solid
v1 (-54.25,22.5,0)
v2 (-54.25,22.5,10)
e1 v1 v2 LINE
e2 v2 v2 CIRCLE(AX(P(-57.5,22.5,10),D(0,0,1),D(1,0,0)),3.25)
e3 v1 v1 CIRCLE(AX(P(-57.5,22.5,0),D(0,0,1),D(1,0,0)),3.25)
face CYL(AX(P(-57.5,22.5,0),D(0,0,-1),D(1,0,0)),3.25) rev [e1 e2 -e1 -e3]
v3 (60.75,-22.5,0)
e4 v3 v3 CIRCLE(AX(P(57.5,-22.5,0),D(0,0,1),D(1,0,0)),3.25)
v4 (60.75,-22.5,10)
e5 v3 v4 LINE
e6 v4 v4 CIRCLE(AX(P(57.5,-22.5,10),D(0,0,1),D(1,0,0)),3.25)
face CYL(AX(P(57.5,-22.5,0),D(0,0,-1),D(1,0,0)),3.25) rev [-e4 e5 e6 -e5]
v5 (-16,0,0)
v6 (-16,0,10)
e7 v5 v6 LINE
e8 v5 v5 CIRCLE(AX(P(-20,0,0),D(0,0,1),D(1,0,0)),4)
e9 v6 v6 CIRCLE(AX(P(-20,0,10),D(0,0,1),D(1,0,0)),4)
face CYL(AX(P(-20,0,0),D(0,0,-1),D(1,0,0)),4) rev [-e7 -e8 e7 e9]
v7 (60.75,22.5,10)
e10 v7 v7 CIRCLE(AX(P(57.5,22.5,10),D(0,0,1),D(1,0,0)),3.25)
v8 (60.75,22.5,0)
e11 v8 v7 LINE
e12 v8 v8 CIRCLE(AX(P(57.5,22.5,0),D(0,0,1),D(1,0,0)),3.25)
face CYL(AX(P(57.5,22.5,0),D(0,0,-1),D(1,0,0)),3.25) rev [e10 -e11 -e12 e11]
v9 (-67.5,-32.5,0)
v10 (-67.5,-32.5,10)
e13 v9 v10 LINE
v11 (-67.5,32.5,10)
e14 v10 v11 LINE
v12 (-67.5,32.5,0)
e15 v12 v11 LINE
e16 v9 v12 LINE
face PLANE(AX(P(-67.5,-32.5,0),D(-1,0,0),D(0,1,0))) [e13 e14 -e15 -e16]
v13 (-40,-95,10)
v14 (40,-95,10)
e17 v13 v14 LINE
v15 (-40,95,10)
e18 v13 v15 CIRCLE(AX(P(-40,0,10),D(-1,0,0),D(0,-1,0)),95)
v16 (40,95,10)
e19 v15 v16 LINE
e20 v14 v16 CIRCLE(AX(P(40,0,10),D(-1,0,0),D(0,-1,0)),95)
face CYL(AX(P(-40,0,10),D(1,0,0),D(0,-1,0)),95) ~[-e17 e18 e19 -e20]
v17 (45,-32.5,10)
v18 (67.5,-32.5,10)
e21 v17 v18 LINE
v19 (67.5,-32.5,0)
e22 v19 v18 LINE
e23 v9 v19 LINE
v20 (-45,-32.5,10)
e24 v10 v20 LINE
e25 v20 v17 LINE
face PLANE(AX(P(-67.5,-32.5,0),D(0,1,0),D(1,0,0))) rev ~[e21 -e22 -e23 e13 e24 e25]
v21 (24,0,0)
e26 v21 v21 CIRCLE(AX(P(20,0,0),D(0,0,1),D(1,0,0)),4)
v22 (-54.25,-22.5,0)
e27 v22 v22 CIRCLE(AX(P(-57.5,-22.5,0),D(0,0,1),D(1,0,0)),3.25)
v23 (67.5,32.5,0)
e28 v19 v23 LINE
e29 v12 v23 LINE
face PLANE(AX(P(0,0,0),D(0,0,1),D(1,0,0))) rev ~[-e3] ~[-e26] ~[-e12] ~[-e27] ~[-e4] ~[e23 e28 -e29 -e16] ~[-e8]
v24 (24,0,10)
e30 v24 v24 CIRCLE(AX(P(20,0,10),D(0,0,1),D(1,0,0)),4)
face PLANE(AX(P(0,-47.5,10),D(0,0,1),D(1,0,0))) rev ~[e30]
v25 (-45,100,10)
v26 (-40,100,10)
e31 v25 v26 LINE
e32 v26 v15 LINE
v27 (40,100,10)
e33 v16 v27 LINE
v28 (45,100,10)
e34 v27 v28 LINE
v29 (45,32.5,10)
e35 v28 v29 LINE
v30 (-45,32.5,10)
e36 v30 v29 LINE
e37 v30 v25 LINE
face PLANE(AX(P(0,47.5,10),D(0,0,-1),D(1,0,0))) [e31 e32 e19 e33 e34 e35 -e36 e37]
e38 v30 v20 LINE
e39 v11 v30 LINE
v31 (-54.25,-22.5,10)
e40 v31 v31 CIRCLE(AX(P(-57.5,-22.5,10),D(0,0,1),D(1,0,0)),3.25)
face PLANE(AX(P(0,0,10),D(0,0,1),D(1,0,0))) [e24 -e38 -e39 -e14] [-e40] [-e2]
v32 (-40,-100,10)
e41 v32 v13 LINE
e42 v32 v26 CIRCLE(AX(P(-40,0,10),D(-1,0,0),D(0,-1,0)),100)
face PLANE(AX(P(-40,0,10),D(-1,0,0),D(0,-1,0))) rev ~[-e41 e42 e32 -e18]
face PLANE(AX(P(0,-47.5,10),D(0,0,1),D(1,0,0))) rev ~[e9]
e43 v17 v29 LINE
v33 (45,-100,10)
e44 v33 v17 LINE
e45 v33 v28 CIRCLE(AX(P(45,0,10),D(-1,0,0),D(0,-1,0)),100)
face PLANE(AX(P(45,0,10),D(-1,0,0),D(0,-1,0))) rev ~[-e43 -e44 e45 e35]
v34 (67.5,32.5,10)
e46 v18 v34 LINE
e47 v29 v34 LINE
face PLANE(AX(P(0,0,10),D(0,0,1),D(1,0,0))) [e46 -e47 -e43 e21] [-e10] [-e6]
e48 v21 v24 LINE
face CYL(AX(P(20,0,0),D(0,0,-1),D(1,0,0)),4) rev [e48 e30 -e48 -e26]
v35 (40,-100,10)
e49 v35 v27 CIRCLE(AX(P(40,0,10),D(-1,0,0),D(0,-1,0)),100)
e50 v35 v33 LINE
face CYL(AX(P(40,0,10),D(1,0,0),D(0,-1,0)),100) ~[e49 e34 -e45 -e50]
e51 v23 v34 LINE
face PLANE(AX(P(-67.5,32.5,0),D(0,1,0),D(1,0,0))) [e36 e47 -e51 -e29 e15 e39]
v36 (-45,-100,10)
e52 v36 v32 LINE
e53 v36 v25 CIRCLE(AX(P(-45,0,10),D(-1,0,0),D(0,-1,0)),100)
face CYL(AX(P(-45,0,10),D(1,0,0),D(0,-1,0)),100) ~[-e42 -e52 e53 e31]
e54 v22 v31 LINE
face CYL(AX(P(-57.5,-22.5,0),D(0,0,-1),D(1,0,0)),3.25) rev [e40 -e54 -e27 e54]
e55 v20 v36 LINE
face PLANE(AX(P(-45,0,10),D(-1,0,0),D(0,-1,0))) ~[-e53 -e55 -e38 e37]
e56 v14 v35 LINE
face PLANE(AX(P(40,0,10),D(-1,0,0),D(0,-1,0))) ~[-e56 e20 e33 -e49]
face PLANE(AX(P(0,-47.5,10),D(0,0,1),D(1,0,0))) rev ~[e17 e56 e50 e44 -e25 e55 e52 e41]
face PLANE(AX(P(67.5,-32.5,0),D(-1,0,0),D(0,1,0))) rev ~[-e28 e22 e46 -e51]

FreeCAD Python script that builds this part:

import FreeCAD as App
import Part
import Sketcher

V = App.Vector
Q = App.Units.Quantity

doc = App.newDocument("Part")
body = doc.addObject("PartDesign::Body", "Body")

sketch1 = body.newObject("Sketcher::SketchObject", "Sketch")
sketch1.AttachmentSupport = (doc.getObject("XY_Plane"), [""])
sketch1.MapMode = "FlatFace"
sketch1.addGeometry([
    Part.LineSegment(V(-67.5, 32.5, 0), V(-67.5, -32.5, 0)),
    Part.LineSegment(V(-67.5, -32.5, 0), V(67.5, -32.5, 0)),
    Part.LineSegment(V(67.5, -32.5, 0), V(67.5, 32.5, 0)),
    Part.LineSegment(V(67.5, 32.5, 0), V(-67.5, 32.5, 0)),
    Part.Circle(V(-57.5, -22.5, 0), V(0, 0, 1), 3.2),
    Part.Circle(V(-20, 0, 0), V(0, 0, 1), 4),
    Part.Circle(V(57.5, -22.5, 0), V(0, 0, 1), 3.2),
    Part.Circle(V(20, 0, 0), V(0, 0, 1), 4),
    Part.Circle(V(-57.5, 22.5, 0), V(0, 0, 1), 3.2),
    Part.Circle(V(57.5, 22.5, 0), V(0, 0, 1), 3.2),
], False)
sketch1.addConstraint([
    Sketcher.Constraint("Coincident", 0, 2, 1, 1),
    Sketcher.Constraint("Coincident", 1, 2, 2, 1),
    Sketcher.Constraint("Coincident", 2, 2, 3, 1),
    Sketcher.Constraint("Coincident", 3, 2, 0, 1),
    Sketcher.Constraint("Vertical", 0),
    Sketcher.Constraint("Horizontal", 1),
    Sketcher.Constraint("Vertical", 2),
    Sketcher.Constraint("Horizontal", 3),
    Sketcher.Constraint("Equal", 4, 6),
    Sketcher.Constraint("Equal", 5, 7),
    Sketcher.Constraint("Equal", 6, 8),
    Sketcher.Constraint("Equal", 8, 9),
    Sketcher.Constraint("Symmetric", 5, 3, 7, 3, -1, 1),
    Sketcher.Constraint("Symmetric", 6, 3, 8, 3, -1, 1),
    Sketcher.Constraint("Symmetric", 4, 3, 9, 3, -1, 1),
    Sketcher.Constraint("Symmetric", 0, 2, 2, 2, -1, 1),
    Sketcher.Constraint("Symmetric", 4, 3, 6, 3, -2),
    Sketcher.Constraint("PointOnObject", 5, 3, -1),
    Sketcher.Constraint("Diameter", 5, Q("8 mm")),
    Sketcher.Constraint("Diameter", 4, Q("6.5 mm")),
    Sketcher.Constraint("DistanceX", 1, 1, 1, 2, Q("135 mm")),
    Sketcher.Constraint("DistanceY", 0, 2, 0, 1, Q("65 mm")),
    Sketcher.Constraint("DistanceX", 5, 3, -1, 1, Q("20 mm")),
    Sketcher.Constraint("DistanceX", 4, 3, 6, 3, Q("115 mm")),
    Sketcher.Constraint("DistanceY", 4, 3, 8, 3, Q("45 mm")),
])
pad1 = body.newObject("PartDesign::Pad", "Pad")
pad1.Profile = sketch1
pad1.Length = 10

sketch2 = body.newObject("Sketcher::SketchObject", "Sketch001")
sketch2.AttachmentSupport = (doc.getObject("XY_Plane"), [""])
sketch2.MapMode = "FlatFace"
sketch2.AttachmentOffset = App.Placement(V(0, 0, 10), App.Rotation())
sketch2.addGeometry([
    Part.LineSegment(V(-45, 0, 0), V(-45, -100, 0)),
    Part.LineSegment(V(-45, -100, 0), V(-40, -100, 0)),
    Part.LineSegment(V(-40, -100, 0), V(-40, -95, 0)),
    Part.LineSegment(V(-40, -95, 0), V(40, -95, 0)),
    Part.LineSegment(V(40, -95, 0), V(40, -100, 0)),
    Part.LineSegment(V(40, -100, 0), V(45, -100, 0)),
    Part.LineSegment(V(45, -100, 0), V(45, 0, 0)),
    Part.LineSegment(V(45, 0, 0), V(-45, 0, 0)),
], False)
sketch2.addConstraint([
    Sketcher.Constraint("Coincident", 0, 2, 1, 1),
    Sketcher.Constraint("Coincident", 1, 2, 2, 1),
    Sketcher.Constraint("Coincident", 2, 2, 3, 1),
    Sketcher.Constraint("Coincident", 3, 2, 4, 1),
    Sketcher.Constraint("Coincident", 4, 2, 5, 1),
    Sketcher.Constraint("Coincident", 5, 2, 6, 1),
    Sketcher.Constraint("Coincident", 6, 2, 7, 1),
    Sketcher.Constraint("Coincident", 7, 2, 0, 1),
    Sketcher.Constraint("Vertical", 0),
    Sketcher.Constraint("Horizontal", 1),
    Sketcher.Constraint("Vertical", 2),
    Sketcher.Constraint("Horizontal", 3),
    Sketcher.Constraint("Vertical", 4),
    Sketcher.Constraint("Horizontal", 5),
    Sketcher.Constraint("Vertical", 6),
    Sketcher.Constraint("Horizontal", 7),
    Sketcher.Constraint("Symmetric", 6, 2, 7, 2, -1, 1),
    Sketcher.Constraint("Symmetric", 1, 2, 4, 2, -2),
    Sketcher.Constraint("Equal", 5, 2),
    Sketcher.Constraint("DistanceX", 1, 1, 1, 2, Q("5 mm")),
    Sketcher.Constraint("DistanceX", 3, 1, 3, 2, Q("80 mm")),
    Sketcher.Constraint("DistanceY", 0, 2, 0, 1, Q("100 mm")),
])
revolution = body.newObject("PartDesign::Revolution", "Revolution")
revolution.Profile = sketch2
revolution.ReferenceAxis = (sketch2, ["H_Axis"])
revolution.Angle = 180
revolution.Reversed = True

doc.recompute()
